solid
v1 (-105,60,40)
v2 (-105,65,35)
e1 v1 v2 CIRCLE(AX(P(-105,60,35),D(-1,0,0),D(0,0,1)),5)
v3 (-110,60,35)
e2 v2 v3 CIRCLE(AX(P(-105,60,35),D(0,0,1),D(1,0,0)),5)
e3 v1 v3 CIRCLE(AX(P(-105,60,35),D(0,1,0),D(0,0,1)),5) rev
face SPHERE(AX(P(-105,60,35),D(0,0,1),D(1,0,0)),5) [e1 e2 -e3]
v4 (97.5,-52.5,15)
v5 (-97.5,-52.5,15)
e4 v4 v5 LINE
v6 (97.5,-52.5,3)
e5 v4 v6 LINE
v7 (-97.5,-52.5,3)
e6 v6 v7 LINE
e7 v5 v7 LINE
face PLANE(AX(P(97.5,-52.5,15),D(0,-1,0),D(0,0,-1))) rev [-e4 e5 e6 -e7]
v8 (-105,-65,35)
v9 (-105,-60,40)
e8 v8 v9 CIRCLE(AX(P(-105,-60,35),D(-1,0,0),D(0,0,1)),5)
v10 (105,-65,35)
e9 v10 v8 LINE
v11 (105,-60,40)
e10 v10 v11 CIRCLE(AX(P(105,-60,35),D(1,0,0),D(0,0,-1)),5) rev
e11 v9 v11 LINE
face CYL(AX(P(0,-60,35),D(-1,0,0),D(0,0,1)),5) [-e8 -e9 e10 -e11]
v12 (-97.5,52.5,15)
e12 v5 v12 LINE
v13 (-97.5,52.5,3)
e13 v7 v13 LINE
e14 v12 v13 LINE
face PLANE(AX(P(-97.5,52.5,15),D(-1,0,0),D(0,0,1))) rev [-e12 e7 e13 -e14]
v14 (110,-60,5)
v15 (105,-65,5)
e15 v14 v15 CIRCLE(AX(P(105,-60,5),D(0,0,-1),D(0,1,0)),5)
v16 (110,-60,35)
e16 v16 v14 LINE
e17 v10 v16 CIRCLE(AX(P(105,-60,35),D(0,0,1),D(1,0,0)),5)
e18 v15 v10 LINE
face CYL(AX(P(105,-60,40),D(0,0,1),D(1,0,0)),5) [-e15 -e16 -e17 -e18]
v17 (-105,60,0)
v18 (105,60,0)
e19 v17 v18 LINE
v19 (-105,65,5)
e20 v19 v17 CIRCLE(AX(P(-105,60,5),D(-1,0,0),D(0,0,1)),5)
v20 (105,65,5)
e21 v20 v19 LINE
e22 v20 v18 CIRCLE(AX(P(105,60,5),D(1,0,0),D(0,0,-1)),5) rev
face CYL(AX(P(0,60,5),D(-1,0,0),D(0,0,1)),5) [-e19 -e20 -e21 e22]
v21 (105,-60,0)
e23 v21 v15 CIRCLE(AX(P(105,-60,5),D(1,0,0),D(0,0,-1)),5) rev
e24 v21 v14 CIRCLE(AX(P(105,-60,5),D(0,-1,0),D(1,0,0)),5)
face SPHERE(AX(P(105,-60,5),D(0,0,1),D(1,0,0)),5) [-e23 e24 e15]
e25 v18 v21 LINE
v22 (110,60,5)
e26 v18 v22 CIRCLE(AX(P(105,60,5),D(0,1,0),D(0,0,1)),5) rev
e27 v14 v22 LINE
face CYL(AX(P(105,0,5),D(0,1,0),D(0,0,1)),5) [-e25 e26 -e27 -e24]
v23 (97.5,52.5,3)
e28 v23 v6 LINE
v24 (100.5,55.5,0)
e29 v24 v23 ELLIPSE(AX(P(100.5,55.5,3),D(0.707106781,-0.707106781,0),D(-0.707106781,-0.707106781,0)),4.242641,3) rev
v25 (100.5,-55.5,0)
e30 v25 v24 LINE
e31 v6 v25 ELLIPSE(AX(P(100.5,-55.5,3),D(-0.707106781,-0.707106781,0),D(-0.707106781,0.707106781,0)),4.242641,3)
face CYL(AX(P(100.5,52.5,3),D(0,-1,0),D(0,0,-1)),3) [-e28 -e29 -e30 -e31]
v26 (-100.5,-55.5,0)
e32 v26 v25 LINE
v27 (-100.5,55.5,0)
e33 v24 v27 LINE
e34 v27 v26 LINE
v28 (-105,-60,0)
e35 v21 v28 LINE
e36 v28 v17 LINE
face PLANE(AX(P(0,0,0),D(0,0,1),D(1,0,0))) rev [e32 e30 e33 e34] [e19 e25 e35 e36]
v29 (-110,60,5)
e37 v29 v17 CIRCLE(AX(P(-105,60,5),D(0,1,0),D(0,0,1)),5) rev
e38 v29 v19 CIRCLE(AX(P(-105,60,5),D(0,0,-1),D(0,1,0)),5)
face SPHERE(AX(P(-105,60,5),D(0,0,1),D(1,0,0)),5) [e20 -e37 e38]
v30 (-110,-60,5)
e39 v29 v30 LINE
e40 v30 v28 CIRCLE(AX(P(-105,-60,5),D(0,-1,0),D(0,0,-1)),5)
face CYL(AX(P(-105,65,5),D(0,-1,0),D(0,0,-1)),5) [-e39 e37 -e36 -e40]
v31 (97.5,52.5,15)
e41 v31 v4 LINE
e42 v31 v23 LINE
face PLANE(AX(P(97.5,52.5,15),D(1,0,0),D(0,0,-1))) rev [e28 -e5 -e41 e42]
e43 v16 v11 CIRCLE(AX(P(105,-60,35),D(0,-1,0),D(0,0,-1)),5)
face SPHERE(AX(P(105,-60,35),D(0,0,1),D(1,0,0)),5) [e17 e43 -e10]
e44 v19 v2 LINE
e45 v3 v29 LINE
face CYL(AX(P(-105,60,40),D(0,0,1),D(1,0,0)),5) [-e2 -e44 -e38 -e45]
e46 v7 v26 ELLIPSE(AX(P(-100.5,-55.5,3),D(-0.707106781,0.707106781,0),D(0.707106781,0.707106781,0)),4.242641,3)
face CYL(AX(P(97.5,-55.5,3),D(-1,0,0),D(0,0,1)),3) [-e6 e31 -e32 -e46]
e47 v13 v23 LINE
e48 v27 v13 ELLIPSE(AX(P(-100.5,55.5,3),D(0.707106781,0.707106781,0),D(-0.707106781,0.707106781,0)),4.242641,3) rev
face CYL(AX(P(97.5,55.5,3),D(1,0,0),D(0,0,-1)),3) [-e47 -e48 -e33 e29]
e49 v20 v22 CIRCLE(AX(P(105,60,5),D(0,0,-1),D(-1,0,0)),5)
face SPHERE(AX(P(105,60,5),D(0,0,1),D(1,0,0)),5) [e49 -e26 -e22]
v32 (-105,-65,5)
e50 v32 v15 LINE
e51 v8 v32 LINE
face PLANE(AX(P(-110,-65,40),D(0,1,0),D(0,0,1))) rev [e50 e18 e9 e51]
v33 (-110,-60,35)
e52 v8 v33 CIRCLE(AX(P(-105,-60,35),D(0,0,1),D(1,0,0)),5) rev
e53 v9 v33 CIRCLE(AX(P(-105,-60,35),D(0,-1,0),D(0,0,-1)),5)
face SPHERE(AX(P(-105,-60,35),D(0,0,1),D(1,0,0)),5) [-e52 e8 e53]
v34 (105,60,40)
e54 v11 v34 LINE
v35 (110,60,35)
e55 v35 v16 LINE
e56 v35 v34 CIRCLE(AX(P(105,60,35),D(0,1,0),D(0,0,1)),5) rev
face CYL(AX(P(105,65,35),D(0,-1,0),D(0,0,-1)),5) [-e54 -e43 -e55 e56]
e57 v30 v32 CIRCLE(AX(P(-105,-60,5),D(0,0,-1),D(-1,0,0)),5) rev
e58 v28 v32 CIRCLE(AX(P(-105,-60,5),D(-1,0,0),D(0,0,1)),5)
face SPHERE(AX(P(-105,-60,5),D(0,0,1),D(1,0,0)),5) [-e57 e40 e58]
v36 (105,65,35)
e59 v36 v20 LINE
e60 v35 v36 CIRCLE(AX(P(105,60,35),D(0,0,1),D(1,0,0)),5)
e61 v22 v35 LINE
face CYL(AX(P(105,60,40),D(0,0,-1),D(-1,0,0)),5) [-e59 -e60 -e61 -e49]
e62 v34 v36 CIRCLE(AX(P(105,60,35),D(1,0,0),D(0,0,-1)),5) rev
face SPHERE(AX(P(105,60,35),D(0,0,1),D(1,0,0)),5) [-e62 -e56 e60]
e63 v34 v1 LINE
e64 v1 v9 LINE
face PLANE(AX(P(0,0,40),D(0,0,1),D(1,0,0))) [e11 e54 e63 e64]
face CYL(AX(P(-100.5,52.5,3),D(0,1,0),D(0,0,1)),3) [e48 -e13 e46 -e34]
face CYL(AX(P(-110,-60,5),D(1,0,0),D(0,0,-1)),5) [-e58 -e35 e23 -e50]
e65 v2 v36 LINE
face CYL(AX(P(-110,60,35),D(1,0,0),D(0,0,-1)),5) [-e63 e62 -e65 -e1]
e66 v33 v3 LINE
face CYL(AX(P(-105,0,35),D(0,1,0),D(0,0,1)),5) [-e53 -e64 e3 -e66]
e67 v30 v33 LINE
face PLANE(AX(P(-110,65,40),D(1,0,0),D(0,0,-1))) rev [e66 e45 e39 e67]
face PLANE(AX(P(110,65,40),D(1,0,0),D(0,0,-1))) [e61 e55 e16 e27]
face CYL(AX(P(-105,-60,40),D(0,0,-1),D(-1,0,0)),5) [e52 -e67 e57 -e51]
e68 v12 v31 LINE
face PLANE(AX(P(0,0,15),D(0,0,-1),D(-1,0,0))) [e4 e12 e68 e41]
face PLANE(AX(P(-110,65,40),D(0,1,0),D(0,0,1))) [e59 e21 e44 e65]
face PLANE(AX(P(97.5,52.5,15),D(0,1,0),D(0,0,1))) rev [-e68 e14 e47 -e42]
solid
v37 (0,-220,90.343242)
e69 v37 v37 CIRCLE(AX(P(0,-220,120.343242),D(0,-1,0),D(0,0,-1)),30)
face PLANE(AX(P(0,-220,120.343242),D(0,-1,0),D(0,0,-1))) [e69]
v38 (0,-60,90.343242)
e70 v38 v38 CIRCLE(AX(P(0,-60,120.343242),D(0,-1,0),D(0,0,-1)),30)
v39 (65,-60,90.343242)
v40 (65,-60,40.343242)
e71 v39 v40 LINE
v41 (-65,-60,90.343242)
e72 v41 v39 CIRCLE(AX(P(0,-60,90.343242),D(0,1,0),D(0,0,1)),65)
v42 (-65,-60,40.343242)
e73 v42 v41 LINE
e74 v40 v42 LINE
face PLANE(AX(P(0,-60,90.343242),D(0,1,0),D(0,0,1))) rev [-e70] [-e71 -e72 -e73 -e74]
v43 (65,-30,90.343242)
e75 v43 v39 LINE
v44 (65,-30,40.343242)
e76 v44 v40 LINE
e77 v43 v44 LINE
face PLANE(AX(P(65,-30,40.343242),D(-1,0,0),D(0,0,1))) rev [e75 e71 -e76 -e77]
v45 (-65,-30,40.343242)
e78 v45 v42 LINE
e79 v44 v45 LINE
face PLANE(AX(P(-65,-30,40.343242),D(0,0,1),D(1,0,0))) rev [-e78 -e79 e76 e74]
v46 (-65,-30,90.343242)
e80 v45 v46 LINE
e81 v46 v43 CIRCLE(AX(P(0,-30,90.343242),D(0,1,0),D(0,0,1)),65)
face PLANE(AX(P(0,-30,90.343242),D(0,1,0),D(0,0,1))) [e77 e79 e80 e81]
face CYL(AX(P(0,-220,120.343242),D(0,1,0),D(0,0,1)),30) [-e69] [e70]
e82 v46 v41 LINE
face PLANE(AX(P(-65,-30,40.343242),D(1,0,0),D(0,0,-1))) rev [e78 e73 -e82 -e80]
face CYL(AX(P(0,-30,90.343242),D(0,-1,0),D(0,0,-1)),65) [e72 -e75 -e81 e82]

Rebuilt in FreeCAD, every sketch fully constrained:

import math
import FreeCAD as App
import Part
import Sketcher

V = App.Vector


def edges_at(feature, points):
    """Names of the edges that pass closest to the given points."""
    edges = feature.Shape.Edges
    near = lambda p: min(range(len(edges)), key=lambda i: edges[i].distToShape(Part.Vertex(*p))[0])
    return sorted({f"Edge{near(p) + 1}" for p in points})


def add_polygon(sketch, points):
    """Adds a closed chain of lines whose ends are joined by coincident constraints."""
    first, n = sketch.GeometryCount, len(points)
    for a, b in zip(points, points[1:] + points[:1]):
        sketch.addGeometry(Part.LineSegment(App.Vector(*a, 0), App.Vector(*b, 0)), False)
    for i in range(n):
        sketch.addConstraint(Sketcher.Constraint("Coincident", first + i, 2, first + (i + 1) % n, 1))

doc = App.newDocument("Part")
body = doc.addObject("PartDesign::Body", "Body")

sketch1 = doc.addObject("Sketcher::SketchObject", "Sketch")
body.addObject(sketch1)
sketch1.AttachmentSupport = (doc.XY_Plane, [""])
sketch1.MapMode = "FlatFace"
add_polygon(sketch1, [(-110, 65), (-110, -65), (110, -65), (110, 65)])
sketch1.addConstraint([
    Sketcher.Constraint("Vertical", 0),
    Sketcher.Constraint("Horizontal", 1),
    Sketcher.Constraint("Vertical", 2),
    Sketcher.Constraint("Horizontal", 3),
    Sketcher.Constraint("Symmetric", 0, 2, 2, 2, -1, 1),
    Sketcher.Constraint("DistanceX", 1, 1, 1, 2, 220.0),
    Sketcher.Constraint("DistanceY", 0, 2, 0, 1, 130.0),
])
pad1 = doc.addObject("PartDesign::Pad", "Pad")
body.addObject(pad1)
pad1.Profile = sketch1
pad1.Length = 40
doc.recompute()

fillet = doc.addObject("PartDesign::Fillet", "Fillet")
body.addObject(fillet)
fillet.Base = (pad1, ["Edge1"])
fillet.UseAllEdges = True
fillet.Radius = 5

sketch2 = doc.addObject("Sketcher::SketchObject", "Sketch001")
body.addObject(sketch2)
sketch2.AttachmentSupport = (doc.XY_Plane, [""])
sketch2.MapMode = "FlatFace"
add_polygon(sketch2, [(98, 52), (98, -52), (-98, -52), (-98, 52)])
sketch2.addConstraint([
    Sketcher.Constraint("Vertical", 0),
    Sketcher.Constraint("Horizontal", 1),
    Sketcher.Constraint("Vertical", 2),
    Sketcher.Constraint("Horizontal", 3),
    Sketcher.Constraint("Symmetric", 0, 2, 2, 2, -1, 1),
    Sketcher.Constraint("DistanceX", 1, 2, 1, 1, 195.0),
    Sketcher.Constraint("DistanceY", 0, 2, 0, 1, 105.0),
])
pocket1 = doc.addObject("PartDesign::Pocket", "Pocket")
body.addObject(pocket1)
pocket1.Profile = sketch2
pocket1.Length = 15
pocket1.Reversed = True
doc.recompute()

fillet2 = doc.addObject("PartDesign::Fillet", "Fillet001")
body.addObject(fillet2)
fillet2.Base = (pocket1, edges_at(pocket1, [
    (-97.5, 0, 0),
    (0, 52.5, 0),
    (97.5, 0, 0),
    (0, -52.5, 0),
]))
fillet2.Radius = 3
body2 = doc.addObject("PartDesign::Body", "Body001")

sketch3 = doc.addObject("Sketcher::SketchObject", "Sketch002")
body2.addObject(sketch3)
sketch3.AttachmentSupport = (doc.getObject("XZ_Plane001"), [""])
sketch3.MapMode = "FlatFace"
sketch3.AttachmentOffset = App.Placement(V(0, 0, 60), App.Rotation())
sketch3.addGeometry([
    Part.LineSegment(V(65, 40, 0), V(-65, 40, 0)),
    Part.LineSegment(V(-65, 40, 0), V(-65, 90, 0)),
    Part.ArcOfCircle(Part.Circle(V(0, 90, 0), V(0, 0, 1), 65), math.radians(0), math.radians(180)),
    Part.LineSegment(V(65, 90, 0), V(65, 40, 0)),
], False)
sketch3.addConstraint([
    Sketcher.Constraint("Coincident", 0, 2, 1, 1),
    Sketcher.Constraint("Tangent", 1, 2, 2, 2),
    Sketcher.Constraint("Tangent", 2, 1, 3, 1),
    Sketcher.Constraint("Coincident", 3, 2, 0, 1),
    Sketcher.Constraint("Horizontal", 0),
    Sketcher.Constraint("Vertical", 1),
    Sketcher.Constraint("Vertical", 3),
    Sketcher.Constraint("PointOnObject", 2, 3, -2),
    Sketcher.Constraint("Radius", 2, 65.0),
    Sketcher.Constraint("DistanceY", 1, 1, 1, 2, 50.0),
    Sketcher.Constraint("DistanceY", -1, 1, 2, 3, 90.343242),
])
pad2 = doc.addObject("PartDesign::Pad", "Pad001")
body2.addObject(pad2)
pad2.Profile = sketch3
pad2.Length = 30
pad2.Reversed = True

sketch4 = doc.addObject("Sketcher::SketchObject", "Sketch003")
body2.addObject(sketch4)
sketch4.AttachmentSupport = (doc.getObject("XZ_Plane001"), [""])
sketch4.MapMode = "FlatFace"
sketch4.AttachmentOffset = App.Placement(V(0, 0, 60), App.Rotation())
sketch4.addGeometry(Part.Circle(V(0, 120, 0), V(0, 0, 1), 30), False)
sketch4.addConstraint([
    Sketcher.Constraint("PointOnObject", 0, 3, -2),
    Sketcher.Constraint("Diameter", 0, 60.0),
    Sketcher.Constraint("DistanceY", -1, 1, 0, 3, 120.343242),
])
pad3 = doc.addObject("PartDesign::Pad", "Pad002")
body2.addObject(pad3)
pad3.Profile = sketch4
pad3.Length = 160

doc.recompute()
